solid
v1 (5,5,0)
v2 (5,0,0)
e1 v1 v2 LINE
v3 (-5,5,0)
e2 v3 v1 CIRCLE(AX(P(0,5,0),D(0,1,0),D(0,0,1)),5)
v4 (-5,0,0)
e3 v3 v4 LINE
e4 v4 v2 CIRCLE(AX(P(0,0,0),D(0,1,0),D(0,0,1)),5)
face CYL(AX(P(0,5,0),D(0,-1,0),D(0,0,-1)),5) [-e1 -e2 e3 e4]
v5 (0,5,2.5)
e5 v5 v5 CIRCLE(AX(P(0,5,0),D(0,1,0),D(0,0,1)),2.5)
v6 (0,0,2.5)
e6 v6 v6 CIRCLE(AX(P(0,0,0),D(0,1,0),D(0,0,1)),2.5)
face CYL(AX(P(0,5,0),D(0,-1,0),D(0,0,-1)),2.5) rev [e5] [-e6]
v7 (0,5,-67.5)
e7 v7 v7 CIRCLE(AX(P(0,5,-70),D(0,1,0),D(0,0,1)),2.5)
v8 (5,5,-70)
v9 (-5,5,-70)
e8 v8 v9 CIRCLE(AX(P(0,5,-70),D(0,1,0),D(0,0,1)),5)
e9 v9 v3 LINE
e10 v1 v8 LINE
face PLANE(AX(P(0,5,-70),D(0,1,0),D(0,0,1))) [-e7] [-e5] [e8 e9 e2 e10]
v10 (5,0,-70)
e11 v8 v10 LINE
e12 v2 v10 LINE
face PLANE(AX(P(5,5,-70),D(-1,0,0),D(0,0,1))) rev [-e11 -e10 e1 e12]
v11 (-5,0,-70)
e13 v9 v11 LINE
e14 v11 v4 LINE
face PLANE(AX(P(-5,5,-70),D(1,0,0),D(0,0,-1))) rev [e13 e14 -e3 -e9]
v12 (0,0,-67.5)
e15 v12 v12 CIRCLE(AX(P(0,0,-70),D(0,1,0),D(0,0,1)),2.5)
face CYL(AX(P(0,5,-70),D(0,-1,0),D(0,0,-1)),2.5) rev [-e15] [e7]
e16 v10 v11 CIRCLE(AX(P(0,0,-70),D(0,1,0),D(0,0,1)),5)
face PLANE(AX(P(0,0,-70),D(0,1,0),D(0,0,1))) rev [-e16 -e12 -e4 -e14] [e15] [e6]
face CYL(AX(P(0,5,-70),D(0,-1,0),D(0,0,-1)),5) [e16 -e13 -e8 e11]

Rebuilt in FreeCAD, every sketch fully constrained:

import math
import FreeCAD as App
import Part
import Sketcher
from FreeCAD import Vector

doc = App.newDocument("Part")
body = doc.addObject("PartDesign::Body", "Body")

# Sketch on XZ plane
sketch1 = doc.addObject("Sketcher::SketchObject", "Sketch")
body.addObject(sketch1)
sketch1.AttachmentSupport = (doc.XZ_Plane, [""])
sketch1.MapMode = "FlatFace"
sketch1.addGeometry([
    Part.LineSegment(Vector(-5, -70, 0), Vector(-5, 0, 0)),  # 0
    Part.ArcOfCircle(Part.Circle(Vector(0, 0, 0), Vector(0, 0, 1), 5), math.radians(0), math.radians(180)),  # 1
    Part.LineSegment(Vector(5, 0, 0), Vector(5, -70, 0)),  # 2
    Part.ArcOfCircle(Part.Circle(Vector(0, -70, 0), Vector(0, 0, 1), 5), math.radians(180), math.radians(360)),  # 3
    Part.Circle(Vector(0, 0, 0), Vector(0, 0, 1), 2.5),  # 4
    Part.Circle(Vector(0, -70, 0), Vector(0, 0, 1), 2.5),  # 5
], False)
sketch1.addConstraint([
    Sketcher.Constraint("Tangent", 0, 2, 1, 2),
    Sketcher.Constraint("Tangent", 1, 1, 2, 1),
    Sketcher.Constraint("Tangent", 2, 2, 3, 2),
    Sketcher.Constraint("Tangent", 3, 1, 0, 1),
    Sketcher.Constraint("Vertical", 0),
    Sketcher.Constraint("Vertical", 2),
    Sketcher.Constraint("Coincident", 1, 3, -1, 1),
    Sketcher.Constraint("Coincident", 4, 3, -1, 1),
    Sketcher.Constraint("Coincident", 5, 3, 3, 3),
    Sketcher.Constraint("Equal", 4, 5),
    Sketcher.Constraint("Diameter", 4, 5.0),
    Sketcher.Constraint("Radius", 1, 5.0),
    Sketcher.Constraint("DistanceY", 0, 1, 0, 2, 70.0),
])
pad1 = doc.addObject("PartDesign::Pad", "Pad")
body.addObject(pad1)
pad1.Profile = sketch1
pad1.Length = 5
pad1.Reversed = True

doc.recompute()
